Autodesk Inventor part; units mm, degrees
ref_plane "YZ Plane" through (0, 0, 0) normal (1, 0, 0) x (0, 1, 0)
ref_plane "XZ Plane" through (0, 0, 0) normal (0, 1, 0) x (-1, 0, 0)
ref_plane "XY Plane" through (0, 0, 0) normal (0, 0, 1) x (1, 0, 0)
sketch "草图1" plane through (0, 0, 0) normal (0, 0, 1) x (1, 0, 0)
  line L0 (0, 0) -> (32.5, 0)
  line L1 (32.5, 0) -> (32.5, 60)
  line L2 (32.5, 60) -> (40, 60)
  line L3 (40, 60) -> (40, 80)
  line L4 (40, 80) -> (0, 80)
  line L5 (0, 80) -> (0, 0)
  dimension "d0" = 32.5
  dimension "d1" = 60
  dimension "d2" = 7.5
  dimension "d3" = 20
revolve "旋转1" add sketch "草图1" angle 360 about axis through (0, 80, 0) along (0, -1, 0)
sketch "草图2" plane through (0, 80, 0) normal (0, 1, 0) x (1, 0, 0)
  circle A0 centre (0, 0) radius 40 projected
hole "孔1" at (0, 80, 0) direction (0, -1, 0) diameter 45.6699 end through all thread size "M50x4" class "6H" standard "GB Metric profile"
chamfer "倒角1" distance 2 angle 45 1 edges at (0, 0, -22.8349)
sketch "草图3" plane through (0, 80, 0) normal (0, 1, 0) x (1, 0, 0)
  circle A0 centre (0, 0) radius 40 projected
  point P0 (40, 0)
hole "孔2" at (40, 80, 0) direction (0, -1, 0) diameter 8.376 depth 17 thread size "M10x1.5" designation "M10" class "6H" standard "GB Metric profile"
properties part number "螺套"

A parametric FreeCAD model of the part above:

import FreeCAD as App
import Part
import Sketcher

V = App.Vector
Q = App.Units.Quantity


def edges_at(feature, points):
    """Names of the edges that pass closest to the given points."""
    edges = feature.Shape.Edges
    near = lambda p: min(range(len(edges)), key=lambda i: edges[i].distToShape(Part.Vertex(*p))[0])
    return sorted({f"Edge{near(p) + 1}" for p in points})

doc = App.newDocument("Part")
body = doc.addObject("PartDesign::Body", "Body")

# Sketch on XY plane
sketch1 = body.newObject("Sketcher::SketchObject", "Sketch")
sketch1.AttachmentSupport = (doc.getObject("XY_Plane"), [""])
sketch1.MapMode = "FlatFace"
sketch1.addGeometry([
    Part.LineSegment(V(0, 80, 0), V(0, 0, 0)),  # 0
    Part.LineSegment(V(0, 0, 0), V(32, 0, 0)),  # 1
    Part.LineSegment(V(32, 0, 0), V(32, 60, 0)),  # 2
    Part.LineSegment(V(32, 60, 0), V(40, 60, 0)),  # 3
    Part.LineSegment(V(40, 60, 0), V(40, 80, 0)),  # 4
    Part.LineSegment(V(40, 80, 0), V(0, 80, 0)),  # 5
], False)
sketch1.addConstraint([
    Sketcher.Constraint("Coincident", 0, 2, 1, 1),
    Sketcher.Constraint("Coincident", 1, 2, 2, 1),
    Sketcher.Constraint("Coincident", 2, 2, 3, 1),
    Sketcher.Constraint("Coincident", 3, 2, 4, 1),
    Sketcher.Constraint("Coincident", 4, 2, 5, 1),
    Sketcher.Constraint("Coincident", 5, 2, 0, 1),
    Sketcher.Constraint("Vertical", 0),
    Sketcher.Constraint("Horizontal", 1),
    Sketcher.Constraint("Vertical", 2),
    Sketcher.Constraint("Horizontal", 3),
    Sketcher.Constraint("Vertical", 4),
    Sketcher.Constraint("Horizontal", 5),
    Sketcher.Constraint("Coincident", 0, 2, -1, 1),
    Sketcher.Constraint("DistanceY", 2, 1, 2, 2, Q("60 mm")),
    Sketcher.Constraint("DistanceY", 4, 1, 4, 2, Q("20 mm")),
    Sketcher.Constraint("DistanceX", 1, 1, 1, 2, Q("32.5 mm")),
    Sketcher.Constraint("DistanceX", 3, 1, 3, 2, Q("7.5 mm")),
])
revolution = body.newObject("PartDesign::Revolution", "Revolution")
revolution.Profile = sketch1
revolution.ReferenceAxis = (sketch1, ["V_Axis"])
revolution.Angle = 360

# Sketch on XZ plane
sketch2 = body.newObject("Sketcher::SketchObject", "Sketch001")
sketch2.AttachmentSupport = (doc.getObject("XZ_Plane"), [""])
sketch2.MapMode = "FlatFace"
sketch2.AttachmentOffset = App.Placement(V(0, 0, -80), App.Rotation())
sketch2.addGeometry(Part.Circle(V(0, 0, 0), V(0, 0, 1), 23), False)
sketch2.addConstraint([
    Sketcher.Constraint("Coincident", 0, 3, -1, 1),
    Sketcher.Constraint("Diameter", 0, Q("45.67 mm")),
])
doc.recompute()
hole = body.newObject("PartDesign::Hole", "Hole")
hole.Profile = sketch2
hole.ThreadType = "None"
hole.Diameter = 45.6699
hole.DepthType = "ThroughAll"
hole.Reversed = True
doc.recompute()

chamfer = body.newObject("PartDesign::Chamfer", "Chamfer")
chamfer.Base = (hole, edges_at(hole, [(0, 0, -22.835)]))
chamfer.Size = 2

# Sketch on XZ plane
sketch3 = body.newObject("Sketcher::SketchObject", "Sketch002")
sketch3.AttachmentSupport = (doc.getObject("XZ_Plane"), [""])
sketch3.MapMode = "FlatFace"
sketch3.AttachmentOffset = App.Placement(V(0, 0, -80), App.Rotation())
sketch3.addGeometry(Part.Circle(V(40, 0, 0), V(0, 0, 1), 4.2), False)
sketch3.addConstraint([
    Sketcher.Constraint("PointOnObject", 0, 3, -1),
    Sketcher.Constraint("Diameter", 0, Q("8.376 mm")),
    Sketcher.Constraint("DistanceX", -1, 1, 0, 3, Q("40 mm")),
])
doc.recompute()
hole2 = body.newObject("PartDesign::Hole", "Hole001")
hole2.Profile = sketch3
hole2.ThreadType = "None"
hole2.Diameter = 8.376
hole2.DepthType = "Dimension"
hole2.Depth = 17
hole2.DrillPoint = "Flat"
hole2.Reversed = True

doc.recompute()
